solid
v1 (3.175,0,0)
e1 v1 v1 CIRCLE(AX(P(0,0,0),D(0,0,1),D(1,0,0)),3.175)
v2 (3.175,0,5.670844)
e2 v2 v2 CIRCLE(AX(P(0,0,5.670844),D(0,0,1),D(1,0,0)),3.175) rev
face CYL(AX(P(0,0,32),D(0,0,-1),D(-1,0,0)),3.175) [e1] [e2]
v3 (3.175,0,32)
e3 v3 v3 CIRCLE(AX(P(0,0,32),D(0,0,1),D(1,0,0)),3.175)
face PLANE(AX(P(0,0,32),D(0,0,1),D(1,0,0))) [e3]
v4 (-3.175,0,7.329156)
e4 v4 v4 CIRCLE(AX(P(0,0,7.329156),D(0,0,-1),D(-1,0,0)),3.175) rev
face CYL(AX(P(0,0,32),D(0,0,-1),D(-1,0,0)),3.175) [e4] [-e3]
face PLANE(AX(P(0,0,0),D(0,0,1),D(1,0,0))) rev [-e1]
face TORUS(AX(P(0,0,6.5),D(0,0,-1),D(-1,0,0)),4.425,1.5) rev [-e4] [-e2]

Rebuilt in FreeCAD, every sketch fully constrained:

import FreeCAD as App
import Part
import Sketcher
from FreeCAD import Vector
Q = App.Units.Quantity

doc = App.newDocument("Part")
params = doc.addObject("Spreadsheet::Sheet", "Params")
for row, (alias, value) in enumerate([
    ("sketch1_diameter", "6.35 mm"),
    ("pad1_length", "32 mm"),
    ("sketch2_diameter", "3 mm"),
    ("groove_angle", "360 deg"),
], start=1):
    params.set(f"A{row}", alias)
    params.set(f"B{row}", "=" + value)
    params.setAlias(f"B{row}", alias)

body = doc.addObject("PartDesign::Body", "Body")

sketch1 = body.newObject("Sketcher::SketchObject", "Sketch")
sketch1.AttachmentSupport = (doc.getObject("XY_Plane"), [""])
sketch1.MapMode = "FlatFace"
sketch1.addGeometry(Part.Circle(Vector(0, 0, 0), Vector(0, 0, 1), 3.175), False)
sketch1.addConstraint(Sketcher.Constraint("Coincident", 0, 3, -1, 1))
sketch1.addConstraint(Sketcher.Constraint("Diameter", 0, Q("6.35 mm")))
sketch1.setExpression("Constraints[1]", "Params.sketch1_diameter")
pad1 = body.newObject("PartDesign::Pad", "Pad")
pad1.Profile = sketch1
pad1.setExpression("Length", "Params.pad1_length")

sketch2 = body.newObject("Sketcher::SketchObject", "Sketch001")
sketch2.AttachmentSupport = (doc.getObject("YZ_Plane"), [""])
sketch2.MapMode = "FlatFace"
sketch2.addGeometry(Part.Circle(Vector(4.425, 6.5, 0), Vector(0, 0, 1), 1.5), False)
sketch2.addConstraint(Sketcher.Constraint("Diameter", 0, Q("3 mm")))
sketch2.addConstraint(Sketcher.Constraint("DistanceY", -1, 1, 0, 3, Q("6.5 mm")))
sketch2.addConstraint(Sketcher.Constraint("DistanceX", -1, 1, 0, 3, Q("4.425 mm")))
sketch2.setExpression("Constraints[0]", "Params.sketch2_diameter")
groove = body.newObject("PartDesign::Groove", "Groove")
groove.Profile = sketch2
groove.ReferenceAxis = (sketch2, ["V_Axis"])
groove.setExpression("Angle", "Params.groove_angle")

doc.recompute()
